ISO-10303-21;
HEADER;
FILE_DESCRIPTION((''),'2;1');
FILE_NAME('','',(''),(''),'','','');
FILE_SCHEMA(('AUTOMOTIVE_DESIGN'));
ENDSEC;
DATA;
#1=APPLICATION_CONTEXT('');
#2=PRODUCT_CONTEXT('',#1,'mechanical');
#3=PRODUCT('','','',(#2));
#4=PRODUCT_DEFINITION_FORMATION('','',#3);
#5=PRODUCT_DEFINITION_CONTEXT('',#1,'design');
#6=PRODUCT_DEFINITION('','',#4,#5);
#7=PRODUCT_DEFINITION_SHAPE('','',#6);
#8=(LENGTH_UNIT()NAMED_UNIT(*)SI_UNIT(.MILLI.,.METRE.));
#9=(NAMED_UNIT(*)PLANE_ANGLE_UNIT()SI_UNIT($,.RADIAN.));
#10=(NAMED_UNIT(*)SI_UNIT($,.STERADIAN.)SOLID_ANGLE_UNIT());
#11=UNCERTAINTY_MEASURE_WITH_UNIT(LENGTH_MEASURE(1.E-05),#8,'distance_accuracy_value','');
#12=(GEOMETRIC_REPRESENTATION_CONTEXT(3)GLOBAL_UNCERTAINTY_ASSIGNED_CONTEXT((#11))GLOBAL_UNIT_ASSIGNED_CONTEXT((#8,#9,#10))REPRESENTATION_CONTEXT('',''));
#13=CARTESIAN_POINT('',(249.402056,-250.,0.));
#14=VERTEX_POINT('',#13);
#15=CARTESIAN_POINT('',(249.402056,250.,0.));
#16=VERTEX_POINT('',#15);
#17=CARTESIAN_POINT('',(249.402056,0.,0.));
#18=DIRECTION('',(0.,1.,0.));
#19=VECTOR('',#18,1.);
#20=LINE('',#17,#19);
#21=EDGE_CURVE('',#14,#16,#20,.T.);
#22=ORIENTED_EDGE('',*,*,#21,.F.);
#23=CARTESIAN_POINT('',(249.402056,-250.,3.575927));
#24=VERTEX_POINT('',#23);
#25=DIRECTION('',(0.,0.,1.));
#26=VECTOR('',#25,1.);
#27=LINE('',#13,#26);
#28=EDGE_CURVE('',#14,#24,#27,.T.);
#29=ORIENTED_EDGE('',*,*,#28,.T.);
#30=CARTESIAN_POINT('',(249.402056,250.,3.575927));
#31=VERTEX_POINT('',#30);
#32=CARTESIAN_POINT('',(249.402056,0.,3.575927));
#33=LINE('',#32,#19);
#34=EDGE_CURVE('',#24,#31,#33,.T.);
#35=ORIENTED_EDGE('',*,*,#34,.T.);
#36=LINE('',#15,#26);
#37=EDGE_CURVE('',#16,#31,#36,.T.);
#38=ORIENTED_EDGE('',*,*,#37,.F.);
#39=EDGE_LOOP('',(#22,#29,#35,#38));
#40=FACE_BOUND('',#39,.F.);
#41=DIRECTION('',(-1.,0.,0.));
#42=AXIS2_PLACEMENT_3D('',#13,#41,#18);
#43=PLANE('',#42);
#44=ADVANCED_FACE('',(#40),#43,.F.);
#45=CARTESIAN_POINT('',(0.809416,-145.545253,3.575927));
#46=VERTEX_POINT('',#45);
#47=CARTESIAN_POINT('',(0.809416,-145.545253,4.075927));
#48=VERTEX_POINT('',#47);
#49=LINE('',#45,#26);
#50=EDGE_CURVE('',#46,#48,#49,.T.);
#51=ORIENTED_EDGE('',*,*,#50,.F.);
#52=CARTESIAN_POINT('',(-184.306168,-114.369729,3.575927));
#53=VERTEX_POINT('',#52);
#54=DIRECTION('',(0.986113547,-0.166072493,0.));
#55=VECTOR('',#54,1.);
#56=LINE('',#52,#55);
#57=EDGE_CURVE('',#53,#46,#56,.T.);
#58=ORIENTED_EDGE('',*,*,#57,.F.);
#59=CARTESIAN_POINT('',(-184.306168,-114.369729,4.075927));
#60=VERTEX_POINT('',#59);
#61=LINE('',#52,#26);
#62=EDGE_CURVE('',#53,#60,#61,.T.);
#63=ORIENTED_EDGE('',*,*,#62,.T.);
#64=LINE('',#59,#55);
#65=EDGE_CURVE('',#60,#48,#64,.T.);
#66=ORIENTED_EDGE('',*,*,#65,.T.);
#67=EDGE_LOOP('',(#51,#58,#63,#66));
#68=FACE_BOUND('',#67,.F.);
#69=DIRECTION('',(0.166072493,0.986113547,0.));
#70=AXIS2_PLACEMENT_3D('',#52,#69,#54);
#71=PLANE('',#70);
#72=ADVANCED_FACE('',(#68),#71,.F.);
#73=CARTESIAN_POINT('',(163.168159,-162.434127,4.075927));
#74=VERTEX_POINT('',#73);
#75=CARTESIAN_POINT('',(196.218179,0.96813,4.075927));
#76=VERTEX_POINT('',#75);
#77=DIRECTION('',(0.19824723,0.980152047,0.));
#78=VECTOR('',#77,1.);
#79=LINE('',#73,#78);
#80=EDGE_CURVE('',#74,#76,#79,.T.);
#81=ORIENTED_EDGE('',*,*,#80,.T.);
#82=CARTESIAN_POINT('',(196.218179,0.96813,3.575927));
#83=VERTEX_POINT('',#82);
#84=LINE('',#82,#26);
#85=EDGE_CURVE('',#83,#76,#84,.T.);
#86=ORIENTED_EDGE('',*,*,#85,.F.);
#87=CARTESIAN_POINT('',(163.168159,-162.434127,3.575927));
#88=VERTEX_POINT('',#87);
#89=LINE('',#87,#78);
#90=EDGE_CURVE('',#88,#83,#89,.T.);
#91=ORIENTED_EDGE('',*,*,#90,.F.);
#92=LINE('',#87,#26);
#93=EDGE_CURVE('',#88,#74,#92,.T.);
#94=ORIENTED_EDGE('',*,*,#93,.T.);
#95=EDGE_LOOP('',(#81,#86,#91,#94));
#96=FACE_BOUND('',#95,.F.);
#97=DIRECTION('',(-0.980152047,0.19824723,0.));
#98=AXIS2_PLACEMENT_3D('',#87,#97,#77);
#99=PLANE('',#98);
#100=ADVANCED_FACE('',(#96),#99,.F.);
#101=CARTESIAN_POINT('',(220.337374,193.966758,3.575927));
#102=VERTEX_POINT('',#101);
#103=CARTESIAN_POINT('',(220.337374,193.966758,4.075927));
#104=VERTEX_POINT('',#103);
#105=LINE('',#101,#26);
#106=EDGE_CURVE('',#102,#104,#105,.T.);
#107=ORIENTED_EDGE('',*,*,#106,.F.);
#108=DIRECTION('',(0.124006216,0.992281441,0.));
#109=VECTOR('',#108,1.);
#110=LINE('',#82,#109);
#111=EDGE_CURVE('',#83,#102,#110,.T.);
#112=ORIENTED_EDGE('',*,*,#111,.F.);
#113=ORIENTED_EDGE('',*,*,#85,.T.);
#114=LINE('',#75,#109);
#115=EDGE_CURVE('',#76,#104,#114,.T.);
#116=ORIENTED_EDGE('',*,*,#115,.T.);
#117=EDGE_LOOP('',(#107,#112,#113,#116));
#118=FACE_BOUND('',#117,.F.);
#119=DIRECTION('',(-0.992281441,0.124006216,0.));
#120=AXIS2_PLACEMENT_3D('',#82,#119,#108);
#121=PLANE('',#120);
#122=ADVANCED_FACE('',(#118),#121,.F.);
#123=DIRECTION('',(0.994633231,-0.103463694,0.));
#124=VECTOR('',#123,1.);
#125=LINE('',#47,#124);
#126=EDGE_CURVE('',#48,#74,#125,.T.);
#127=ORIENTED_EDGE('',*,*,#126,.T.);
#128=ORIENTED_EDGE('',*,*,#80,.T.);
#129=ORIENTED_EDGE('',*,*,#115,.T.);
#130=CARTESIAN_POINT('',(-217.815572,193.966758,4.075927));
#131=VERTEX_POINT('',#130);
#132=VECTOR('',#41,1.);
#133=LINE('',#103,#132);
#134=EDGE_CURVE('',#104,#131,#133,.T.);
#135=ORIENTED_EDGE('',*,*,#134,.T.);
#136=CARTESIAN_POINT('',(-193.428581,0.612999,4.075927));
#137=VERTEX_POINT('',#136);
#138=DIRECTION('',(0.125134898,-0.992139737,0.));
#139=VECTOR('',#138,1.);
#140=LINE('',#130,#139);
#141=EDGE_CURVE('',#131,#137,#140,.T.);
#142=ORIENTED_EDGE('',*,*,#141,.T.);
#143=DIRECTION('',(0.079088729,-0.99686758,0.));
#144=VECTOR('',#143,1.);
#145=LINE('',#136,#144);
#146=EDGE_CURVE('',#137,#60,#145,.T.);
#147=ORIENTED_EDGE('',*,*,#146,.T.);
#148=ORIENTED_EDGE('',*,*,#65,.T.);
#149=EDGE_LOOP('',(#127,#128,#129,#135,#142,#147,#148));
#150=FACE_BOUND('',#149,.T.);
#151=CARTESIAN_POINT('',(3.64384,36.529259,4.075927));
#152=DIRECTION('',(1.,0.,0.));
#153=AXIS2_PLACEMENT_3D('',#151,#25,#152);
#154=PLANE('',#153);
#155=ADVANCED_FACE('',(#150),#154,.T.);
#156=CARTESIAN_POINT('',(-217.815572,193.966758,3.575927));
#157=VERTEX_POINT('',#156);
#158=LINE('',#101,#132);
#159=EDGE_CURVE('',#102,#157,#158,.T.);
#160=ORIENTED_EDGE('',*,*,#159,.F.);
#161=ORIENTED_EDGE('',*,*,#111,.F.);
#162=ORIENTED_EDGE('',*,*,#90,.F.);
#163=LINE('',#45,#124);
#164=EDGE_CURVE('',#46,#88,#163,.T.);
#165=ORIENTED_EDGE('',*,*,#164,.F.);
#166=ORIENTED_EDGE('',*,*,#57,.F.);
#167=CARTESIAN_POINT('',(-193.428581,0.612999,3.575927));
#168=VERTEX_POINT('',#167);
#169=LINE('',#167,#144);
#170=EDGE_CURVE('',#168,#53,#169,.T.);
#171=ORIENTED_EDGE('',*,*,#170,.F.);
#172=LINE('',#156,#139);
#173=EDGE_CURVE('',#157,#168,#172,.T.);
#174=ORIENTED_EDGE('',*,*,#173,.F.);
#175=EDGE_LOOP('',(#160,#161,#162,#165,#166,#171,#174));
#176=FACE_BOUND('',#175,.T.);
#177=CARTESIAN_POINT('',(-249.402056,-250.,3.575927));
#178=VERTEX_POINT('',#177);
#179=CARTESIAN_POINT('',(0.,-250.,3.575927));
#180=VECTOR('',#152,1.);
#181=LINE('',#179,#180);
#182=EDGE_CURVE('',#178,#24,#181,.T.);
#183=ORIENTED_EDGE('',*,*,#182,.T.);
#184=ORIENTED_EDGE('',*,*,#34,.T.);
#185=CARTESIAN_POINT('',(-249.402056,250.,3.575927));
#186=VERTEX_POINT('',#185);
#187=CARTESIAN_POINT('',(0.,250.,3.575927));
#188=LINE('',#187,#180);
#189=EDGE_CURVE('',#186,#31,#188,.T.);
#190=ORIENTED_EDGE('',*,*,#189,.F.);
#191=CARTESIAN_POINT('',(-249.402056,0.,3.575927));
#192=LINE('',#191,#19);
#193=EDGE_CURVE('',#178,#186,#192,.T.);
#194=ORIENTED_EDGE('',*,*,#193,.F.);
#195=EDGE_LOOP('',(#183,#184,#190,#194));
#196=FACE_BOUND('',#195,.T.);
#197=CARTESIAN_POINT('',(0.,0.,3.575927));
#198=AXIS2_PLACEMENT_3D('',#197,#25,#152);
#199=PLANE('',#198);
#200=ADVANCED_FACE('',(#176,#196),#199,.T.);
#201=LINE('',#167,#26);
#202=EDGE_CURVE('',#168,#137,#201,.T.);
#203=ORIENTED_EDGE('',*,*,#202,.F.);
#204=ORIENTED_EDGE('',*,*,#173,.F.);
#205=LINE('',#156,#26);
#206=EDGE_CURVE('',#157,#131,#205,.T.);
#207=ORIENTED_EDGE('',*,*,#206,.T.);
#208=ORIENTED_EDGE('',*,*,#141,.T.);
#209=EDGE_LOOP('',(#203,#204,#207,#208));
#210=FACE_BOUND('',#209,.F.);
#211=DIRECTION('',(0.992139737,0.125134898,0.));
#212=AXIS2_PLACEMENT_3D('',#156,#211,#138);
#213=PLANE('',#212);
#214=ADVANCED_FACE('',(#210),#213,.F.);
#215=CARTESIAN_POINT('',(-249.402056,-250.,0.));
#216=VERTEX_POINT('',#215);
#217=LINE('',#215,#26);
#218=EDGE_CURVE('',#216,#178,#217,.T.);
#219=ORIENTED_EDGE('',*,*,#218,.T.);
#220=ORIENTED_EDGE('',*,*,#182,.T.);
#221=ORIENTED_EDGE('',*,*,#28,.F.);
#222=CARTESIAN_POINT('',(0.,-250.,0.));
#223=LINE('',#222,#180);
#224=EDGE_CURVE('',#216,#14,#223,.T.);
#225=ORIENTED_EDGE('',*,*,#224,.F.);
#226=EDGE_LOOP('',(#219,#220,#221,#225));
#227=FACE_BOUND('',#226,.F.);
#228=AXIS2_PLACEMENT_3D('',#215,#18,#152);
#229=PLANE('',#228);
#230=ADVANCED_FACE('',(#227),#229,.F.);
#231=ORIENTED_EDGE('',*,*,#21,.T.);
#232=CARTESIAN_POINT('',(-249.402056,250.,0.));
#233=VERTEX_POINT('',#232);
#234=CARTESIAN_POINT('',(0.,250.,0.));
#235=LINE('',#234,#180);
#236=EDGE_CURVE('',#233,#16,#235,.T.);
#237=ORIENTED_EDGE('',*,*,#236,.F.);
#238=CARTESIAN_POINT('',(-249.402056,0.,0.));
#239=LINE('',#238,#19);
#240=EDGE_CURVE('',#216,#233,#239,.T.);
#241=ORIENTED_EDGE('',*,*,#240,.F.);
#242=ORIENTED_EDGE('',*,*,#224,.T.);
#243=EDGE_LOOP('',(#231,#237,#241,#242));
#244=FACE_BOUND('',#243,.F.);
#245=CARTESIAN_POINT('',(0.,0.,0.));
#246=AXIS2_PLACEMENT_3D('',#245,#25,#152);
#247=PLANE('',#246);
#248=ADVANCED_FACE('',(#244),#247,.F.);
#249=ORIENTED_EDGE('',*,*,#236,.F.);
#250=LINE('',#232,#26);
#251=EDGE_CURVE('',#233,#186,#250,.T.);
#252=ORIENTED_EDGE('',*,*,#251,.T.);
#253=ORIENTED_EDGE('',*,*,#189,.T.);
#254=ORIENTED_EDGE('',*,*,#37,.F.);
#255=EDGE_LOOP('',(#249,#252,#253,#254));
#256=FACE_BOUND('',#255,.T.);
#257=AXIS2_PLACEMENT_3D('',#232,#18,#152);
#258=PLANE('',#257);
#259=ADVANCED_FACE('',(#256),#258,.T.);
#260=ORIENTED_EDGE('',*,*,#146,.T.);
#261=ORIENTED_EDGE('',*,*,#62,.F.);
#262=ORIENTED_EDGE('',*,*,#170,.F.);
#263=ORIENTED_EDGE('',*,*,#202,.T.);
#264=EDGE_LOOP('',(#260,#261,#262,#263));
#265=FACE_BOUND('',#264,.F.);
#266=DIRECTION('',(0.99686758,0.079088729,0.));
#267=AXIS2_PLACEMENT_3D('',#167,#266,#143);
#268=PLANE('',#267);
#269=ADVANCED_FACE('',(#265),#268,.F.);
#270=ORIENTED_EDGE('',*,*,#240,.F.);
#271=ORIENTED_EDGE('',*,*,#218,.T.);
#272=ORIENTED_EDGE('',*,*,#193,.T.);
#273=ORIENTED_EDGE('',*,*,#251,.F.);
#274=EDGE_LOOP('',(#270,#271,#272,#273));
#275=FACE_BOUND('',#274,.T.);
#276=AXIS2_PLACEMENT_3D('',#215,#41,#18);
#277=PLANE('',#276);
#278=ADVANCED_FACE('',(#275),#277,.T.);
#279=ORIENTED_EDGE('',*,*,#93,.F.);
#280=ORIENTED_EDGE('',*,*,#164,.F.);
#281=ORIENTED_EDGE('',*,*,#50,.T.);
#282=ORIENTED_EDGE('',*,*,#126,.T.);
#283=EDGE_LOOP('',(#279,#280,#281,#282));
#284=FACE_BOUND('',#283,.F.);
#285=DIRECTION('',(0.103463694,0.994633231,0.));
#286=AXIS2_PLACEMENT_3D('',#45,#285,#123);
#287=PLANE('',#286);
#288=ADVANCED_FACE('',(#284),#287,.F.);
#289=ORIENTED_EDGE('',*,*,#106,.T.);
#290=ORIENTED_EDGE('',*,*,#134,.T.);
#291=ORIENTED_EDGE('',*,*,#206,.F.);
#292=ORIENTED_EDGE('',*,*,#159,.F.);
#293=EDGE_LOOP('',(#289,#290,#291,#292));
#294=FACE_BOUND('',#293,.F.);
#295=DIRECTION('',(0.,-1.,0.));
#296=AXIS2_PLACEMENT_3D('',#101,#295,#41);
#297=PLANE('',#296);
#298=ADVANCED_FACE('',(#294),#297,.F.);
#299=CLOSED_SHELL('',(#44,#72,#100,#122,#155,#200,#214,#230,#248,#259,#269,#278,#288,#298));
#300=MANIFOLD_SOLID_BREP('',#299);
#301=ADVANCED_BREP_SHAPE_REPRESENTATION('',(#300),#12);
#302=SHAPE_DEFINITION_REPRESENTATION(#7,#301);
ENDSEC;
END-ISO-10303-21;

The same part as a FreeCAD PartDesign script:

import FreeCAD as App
import Part
import Sketcher
Q = App.Units.Quantity

doc = App.newDocument("Part")
body = doc.addObject("PartDesign::Body", "Body")

# Sketch on XY plane
sketch1 = doc.addObject("Sketcher::SketchObject", "Sketch")
body.addObject(sketch1)
sketch1.AttachmentSupport = (doc.XY_Plane, [""])
sketch1.MapMode = "FlatFace"
sketch1.addGeometry([
    Part.LineSegment(App.Vector(-249.402056, 250, 0), App.Vector(-249.402056, -250, 0)),
    Part.LineSegment(App.Vector(-249.402056, -250, 0), App.Vector(249.402056, -250, 0)),
    Part.LineSegment(App.Vector(249.402056, -250, 0), App.Vector(249.402056, 250, 0)),
    Part.LineSegment(App.Vector(249.402056, 250, 0), App.Vector(-249.402056, 250, 0)),
], False)
sketch1.addConstraint([
    Sketcher.Constraint("Coincident", 0, 2, 1, 1),
    Sketcher.Constraint("Coincident", 1, 2, 2, 1),
    Sketcher.Constraint("Coincident", 2, 2, 3, 1),
    Sketcher.Constraint("Coincident", 3, 2, 0, 1),
    Sketcher.Constraint("Vertical", 0),
    Sketcher.Constraint("Horizontal", 1),
    Sketcher.Constraint("Vertical", 2),
    Sketcher.Constraint("Horizontal", 3),
    Sketcher.Constraint("Symmetric", 0, 2, 2, 2, -1, 1),
    Sketcher.Constraint("DistanceY", 0, 2, 0, 1, Q("500 mm")),
    Sketcher.Constraint("DistanceX", 1, 1, 1, 2, Q("498.804112 mm")),
])
pad1 = doc.addObject("PartDesign::Pad", "Pad")
body.addObject(pad1)
pad1.Profile = sketch1
pad1.Length = 3.575927

# Sketch on XY plane
sketch2 = doc.addObject("Sketcher::SketchObject", "Sketch001")
body.addObject(sketch2)
sketch2.AttachmentSupport = (doc.XY_Plane, [""])
sketch2.MapMode = "FlatFace"
sketch2.AttachmentOffset = App.Placement(App.Vector(0, 0, 3.575927), App.Rotation())
sketch2.addGeometry([
    Part.LineSegment(App.Vector(220.337374, 193.966758, 0), App.Vector(-217.815572, 193.966758, 0)),  # 0
    Part.LineSegment(App.Vector(-217.815572, 193.966758, 0), App.Vector(-193.428581, 0.612999, 0)),  # 1
    Part.LineSegment(App.Vector(-193.428581, 0.612999, 0), App.Vector(-184.306168, -114.369729, 0)),  # 2
    Part.LineSegment(App.Vector(-184.306168, -114.369729, 0), App.Vector(0.809416, -145.545253, 0)),  # 3
    Part.LineSegment(App.Vector(0.809416, -145.545253, 0), App.Vector(163.168159, -162.434127, 0)),  # 4
    Part.LineSegment(App.Vector(163.168159, -162.434127, 0), App.Vector(196.218179, 0.96813, 0)),  # 5
    Part.LineSegment(App.Vector(196.218179, 0.96813, 0), App.Vector(220.337374, 193.966758, 0)),  # 6
], False)
sketch2.addConstraint([
    Sketcher.Constraint("Coincident", 0, 2, 1, 1),
    Sketcher.Constraint("Coincident", 1, 2, 2, 1),
    Sketcher.Constraint("Coincident", 2, 2, 3, 1),
    Sketcher.Constraint("Coincident", 3, 2, 4, 1),
    Sketcher.Constraint("Coincident", 4, 2, 5, 1),
    Sketcher.Constraint("Coincident", 5, 2, 6, 1),
    Sketcher.Constraint("Coincident", 6, 2, 0, 1),
    Sketcher.Constraint("Horizontal", 0),
    Sketcher.Constraint("DistanceY", -1, 1, 1, 2, Q("0.612999 mm")),
    Sketcher.Constraint("Distance", 1, Q("194.885611 mm")),
    Sketcher.Constraint("Distance", 5, Q("166.711132 mm")),
    Sketcher.Constraint("DistanceX", 0, 2, 0, 1, Q("438.152946 mm")),
    Sketcher.Constraint("DistanceX", 0, 2, -1, 1, Q("217.815572 mm")),
    Sketcher.Constraint("DistanceY", -1, 1, 0, 2, Q("193.966758 mm")),
    Sketcher.Constraint("DistanceX", 2, 2, -1, 1, Q("184.306168 mm")),
    Sketcher.Constraint("DistanceY", 2, 2, -1, 1, Q("114.369729 mm")),
    Sketcher.Constraint("DistanceX", -1, 1, 4, 2, Q("163.168159 mm")),
    Sketcher.Constraint("DistanceX", -1, 1, 5, 2, Q("196.218179 mm")),
    Sketcher.Constraint("DistanceY", -1, 1, 5, 2, Q("0.96813 mm")),
    Sketcher.Constraint("DistanceY", 3, 2, 1, 2, Q("146.158252 mm")),
    Sketcher.Constraint("DistanceX", 0, 2, 3, 2, Q("218.624988 mm")),
])
pad2 = doc.addObject("PartDesign::Pad", "Pad001")
body.addObject(pad2)
pad2.Profile = sketch2
pad2.Length = 0.5

doc.recompute()
